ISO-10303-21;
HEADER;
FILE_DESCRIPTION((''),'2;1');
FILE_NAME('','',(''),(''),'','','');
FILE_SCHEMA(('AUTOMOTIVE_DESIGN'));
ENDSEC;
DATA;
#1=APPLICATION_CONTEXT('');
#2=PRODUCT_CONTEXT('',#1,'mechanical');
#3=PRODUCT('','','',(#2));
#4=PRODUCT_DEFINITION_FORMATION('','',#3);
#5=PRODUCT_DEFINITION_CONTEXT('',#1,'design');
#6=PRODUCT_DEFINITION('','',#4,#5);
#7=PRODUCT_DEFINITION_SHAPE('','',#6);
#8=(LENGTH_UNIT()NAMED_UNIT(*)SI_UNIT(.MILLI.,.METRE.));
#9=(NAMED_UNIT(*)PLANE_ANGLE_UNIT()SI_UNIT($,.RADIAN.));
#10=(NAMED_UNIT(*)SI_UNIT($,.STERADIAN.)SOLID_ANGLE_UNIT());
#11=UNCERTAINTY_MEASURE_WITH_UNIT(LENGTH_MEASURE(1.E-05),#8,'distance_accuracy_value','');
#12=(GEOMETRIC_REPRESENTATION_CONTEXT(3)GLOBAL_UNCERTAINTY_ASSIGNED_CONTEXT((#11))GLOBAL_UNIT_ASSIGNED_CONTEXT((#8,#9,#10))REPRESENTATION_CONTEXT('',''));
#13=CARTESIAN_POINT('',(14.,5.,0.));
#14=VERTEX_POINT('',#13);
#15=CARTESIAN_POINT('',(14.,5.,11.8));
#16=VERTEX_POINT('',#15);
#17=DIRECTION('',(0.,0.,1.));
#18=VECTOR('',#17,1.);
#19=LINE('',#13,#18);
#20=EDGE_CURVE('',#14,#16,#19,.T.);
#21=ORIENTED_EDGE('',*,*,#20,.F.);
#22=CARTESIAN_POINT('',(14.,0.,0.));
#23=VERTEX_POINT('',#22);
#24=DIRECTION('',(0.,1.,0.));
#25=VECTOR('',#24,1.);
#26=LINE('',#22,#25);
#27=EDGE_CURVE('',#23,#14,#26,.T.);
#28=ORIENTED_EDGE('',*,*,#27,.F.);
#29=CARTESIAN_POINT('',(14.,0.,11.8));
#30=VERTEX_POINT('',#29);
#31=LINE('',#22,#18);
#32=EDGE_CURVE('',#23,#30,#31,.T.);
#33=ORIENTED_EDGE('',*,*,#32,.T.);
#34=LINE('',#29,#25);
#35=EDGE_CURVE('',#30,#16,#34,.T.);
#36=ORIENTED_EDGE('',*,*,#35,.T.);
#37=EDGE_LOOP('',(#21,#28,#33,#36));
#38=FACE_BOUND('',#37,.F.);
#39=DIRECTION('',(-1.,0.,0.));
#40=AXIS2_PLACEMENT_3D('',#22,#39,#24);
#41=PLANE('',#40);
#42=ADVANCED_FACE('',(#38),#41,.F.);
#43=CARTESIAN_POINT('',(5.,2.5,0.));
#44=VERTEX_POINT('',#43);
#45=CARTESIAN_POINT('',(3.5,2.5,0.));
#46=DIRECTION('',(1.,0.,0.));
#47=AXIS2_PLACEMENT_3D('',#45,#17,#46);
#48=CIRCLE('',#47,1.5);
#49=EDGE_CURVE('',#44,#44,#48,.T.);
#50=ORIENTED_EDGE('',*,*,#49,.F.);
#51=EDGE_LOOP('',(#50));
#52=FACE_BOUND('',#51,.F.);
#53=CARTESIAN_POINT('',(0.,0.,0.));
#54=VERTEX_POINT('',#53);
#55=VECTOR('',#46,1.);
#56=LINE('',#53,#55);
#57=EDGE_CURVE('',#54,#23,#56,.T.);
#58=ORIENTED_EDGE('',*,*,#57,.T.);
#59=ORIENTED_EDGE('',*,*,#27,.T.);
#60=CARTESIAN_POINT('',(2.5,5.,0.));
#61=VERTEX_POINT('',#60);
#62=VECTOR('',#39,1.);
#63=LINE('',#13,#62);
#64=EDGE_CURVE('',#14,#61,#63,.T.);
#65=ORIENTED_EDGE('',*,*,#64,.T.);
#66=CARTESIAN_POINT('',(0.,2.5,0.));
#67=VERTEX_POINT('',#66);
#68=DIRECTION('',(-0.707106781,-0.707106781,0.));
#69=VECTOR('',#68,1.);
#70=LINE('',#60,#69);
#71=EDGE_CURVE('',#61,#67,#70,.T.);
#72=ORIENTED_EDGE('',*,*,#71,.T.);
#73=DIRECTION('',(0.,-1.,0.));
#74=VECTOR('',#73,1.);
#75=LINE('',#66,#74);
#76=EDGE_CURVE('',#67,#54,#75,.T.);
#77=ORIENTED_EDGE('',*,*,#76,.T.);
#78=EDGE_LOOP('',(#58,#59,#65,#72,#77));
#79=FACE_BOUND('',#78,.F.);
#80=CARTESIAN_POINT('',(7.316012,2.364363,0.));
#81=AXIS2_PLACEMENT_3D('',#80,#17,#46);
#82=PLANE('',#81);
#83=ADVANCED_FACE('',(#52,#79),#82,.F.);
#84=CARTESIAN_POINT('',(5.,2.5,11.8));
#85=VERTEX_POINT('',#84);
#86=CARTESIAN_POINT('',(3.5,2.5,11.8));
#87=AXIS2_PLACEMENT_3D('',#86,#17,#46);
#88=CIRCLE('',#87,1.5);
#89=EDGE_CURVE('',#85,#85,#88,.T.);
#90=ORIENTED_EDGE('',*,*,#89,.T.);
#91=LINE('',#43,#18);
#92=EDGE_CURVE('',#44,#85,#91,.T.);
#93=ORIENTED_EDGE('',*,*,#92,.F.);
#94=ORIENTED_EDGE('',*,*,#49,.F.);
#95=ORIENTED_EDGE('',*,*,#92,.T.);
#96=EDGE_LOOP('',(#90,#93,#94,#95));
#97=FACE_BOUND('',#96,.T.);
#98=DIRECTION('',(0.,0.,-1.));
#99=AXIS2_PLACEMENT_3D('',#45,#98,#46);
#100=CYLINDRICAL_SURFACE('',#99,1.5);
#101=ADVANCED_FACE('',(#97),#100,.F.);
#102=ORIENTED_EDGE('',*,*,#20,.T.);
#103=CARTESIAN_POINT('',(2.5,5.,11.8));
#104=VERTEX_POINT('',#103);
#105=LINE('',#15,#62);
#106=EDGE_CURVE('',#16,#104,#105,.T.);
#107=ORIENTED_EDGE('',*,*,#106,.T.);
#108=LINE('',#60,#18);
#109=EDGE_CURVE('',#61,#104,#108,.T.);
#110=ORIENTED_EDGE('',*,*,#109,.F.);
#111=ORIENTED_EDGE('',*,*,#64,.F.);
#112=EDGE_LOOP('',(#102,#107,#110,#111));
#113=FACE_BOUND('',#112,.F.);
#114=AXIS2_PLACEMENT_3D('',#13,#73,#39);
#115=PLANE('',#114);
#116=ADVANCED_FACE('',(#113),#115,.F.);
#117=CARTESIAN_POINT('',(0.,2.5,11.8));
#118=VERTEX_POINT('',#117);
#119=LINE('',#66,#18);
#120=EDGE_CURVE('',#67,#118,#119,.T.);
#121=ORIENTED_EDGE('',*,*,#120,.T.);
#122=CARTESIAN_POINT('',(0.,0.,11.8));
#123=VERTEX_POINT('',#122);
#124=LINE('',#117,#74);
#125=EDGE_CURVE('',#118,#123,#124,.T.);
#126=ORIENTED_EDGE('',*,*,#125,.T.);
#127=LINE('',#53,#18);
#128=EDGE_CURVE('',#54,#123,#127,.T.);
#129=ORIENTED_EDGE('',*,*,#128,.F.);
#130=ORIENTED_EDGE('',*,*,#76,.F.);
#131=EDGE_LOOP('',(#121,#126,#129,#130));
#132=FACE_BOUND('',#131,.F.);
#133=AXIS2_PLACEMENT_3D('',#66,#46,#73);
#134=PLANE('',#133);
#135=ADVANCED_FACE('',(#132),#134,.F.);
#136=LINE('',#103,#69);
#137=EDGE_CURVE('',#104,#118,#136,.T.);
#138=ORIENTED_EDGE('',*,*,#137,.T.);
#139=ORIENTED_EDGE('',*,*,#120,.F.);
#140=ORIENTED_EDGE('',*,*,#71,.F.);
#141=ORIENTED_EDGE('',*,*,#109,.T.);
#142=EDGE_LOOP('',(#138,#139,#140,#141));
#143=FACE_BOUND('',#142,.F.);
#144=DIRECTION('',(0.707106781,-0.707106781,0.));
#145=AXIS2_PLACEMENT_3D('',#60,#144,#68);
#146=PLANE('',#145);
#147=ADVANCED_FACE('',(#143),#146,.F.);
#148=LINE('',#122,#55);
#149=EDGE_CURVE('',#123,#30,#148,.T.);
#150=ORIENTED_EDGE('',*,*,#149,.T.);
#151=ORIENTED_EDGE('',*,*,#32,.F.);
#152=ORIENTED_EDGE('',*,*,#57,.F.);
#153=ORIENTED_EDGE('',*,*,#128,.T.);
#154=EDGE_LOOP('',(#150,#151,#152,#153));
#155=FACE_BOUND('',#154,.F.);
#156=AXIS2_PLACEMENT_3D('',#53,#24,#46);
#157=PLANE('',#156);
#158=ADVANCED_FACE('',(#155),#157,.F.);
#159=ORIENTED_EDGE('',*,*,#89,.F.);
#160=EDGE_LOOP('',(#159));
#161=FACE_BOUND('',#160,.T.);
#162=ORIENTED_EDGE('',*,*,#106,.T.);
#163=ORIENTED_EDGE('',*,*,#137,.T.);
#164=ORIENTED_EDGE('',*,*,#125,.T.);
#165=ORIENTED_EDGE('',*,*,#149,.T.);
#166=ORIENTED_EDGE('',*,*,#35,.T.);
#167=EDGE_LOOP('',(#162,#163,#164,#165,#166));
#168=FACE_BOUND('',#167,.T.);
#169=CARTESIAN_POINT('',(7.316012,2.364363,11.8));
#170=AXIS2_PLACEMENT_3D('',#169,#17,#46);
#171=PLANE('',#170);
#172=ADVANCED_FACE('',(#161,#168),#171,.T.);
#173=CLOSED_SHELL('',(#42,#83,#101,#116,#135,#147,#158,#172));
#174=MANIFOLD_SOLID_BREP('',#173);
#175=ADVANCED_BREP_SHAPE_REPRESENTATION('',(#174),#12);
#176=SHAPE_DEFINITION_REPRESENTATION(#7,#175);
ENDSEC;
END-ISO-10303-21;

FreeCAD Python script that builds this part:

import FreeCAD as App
import Part
import Sketcher
Q = App.Units.Quantity


def add_polygon(sketch, points):
    """Adds a closed chain of lines whose ends are joined by coincident constraints."""
    first, n = sketch.GeometryCount, len(points)
    for a, b in zip(points, points[1:] + points[:1]):
        sketch.addGeometry(Part.LineSegment(App.Vector(*a, 0), App.Vector(*b, 0)), False)
    for i in range(n):
        sketch.addConstraint(Sketcher.Constraint("Coincident", first + i, 2, first + (i + 1) % n, 1))

doc = App.newDocument("Part")
body = doc.addObject("PartDesign::Body", "Body")

# Sketch on XY plane
sketch1 = body.newObject("Sketcher::SketchObject", "Sketch")
sketch1.AttachmentSupport = (doc.getObject("XY_Plane"), [""])
sketch1.MapMode = "FlatFace"
add_polygon(sketch1, [(0, 2.5), (0, 0), (14, 0), (14, 5), (2.5, 5)])  # lines 0-4
sketch1.addGeometry(Part.Circle(App.Vector(3.5, 2.5, 0), App.Vector(0, 0, 1), 1.5), False)  # 5
sketch1.addConstraint([
    Sketcher.Constraint("Vertical", 0),
    Sketcher.Constraint("Horizontal", 1),
    Sketcher.Constraint("Vertical", 2),
    Sketcher.Constraint("Horizontal", 3),
    Sketcher.Constraint("Coincident", 0, 2, -1, 1),
    Sketcher.Constraint("Horizontal", 5, 3, 4, 2),
    Sketcher.Constraint("Diameter", 5, 3.0),
    Sketcher.Constraint("DistanceX", 1, 1, 1, 2, 14.0),
    Sketcher.Constraint("DistanceY", 2, 1, 2, 2, 5.0),
    Sketcher.Constraint("Angle", 4, Q("-135 deg")),
    Sketcher.Constraint("DistanceX", 3, 2, 3, 1, 11.5),
    Sketcher.Constraint("DistanceX", 3, 2, 5, 3, 1.0),
])
pad1 = body.newObject("PartDesign::Pad", "Pad")
pad1.Profile = sketch1
pad1.Length = 11.8

doc.recompute()
